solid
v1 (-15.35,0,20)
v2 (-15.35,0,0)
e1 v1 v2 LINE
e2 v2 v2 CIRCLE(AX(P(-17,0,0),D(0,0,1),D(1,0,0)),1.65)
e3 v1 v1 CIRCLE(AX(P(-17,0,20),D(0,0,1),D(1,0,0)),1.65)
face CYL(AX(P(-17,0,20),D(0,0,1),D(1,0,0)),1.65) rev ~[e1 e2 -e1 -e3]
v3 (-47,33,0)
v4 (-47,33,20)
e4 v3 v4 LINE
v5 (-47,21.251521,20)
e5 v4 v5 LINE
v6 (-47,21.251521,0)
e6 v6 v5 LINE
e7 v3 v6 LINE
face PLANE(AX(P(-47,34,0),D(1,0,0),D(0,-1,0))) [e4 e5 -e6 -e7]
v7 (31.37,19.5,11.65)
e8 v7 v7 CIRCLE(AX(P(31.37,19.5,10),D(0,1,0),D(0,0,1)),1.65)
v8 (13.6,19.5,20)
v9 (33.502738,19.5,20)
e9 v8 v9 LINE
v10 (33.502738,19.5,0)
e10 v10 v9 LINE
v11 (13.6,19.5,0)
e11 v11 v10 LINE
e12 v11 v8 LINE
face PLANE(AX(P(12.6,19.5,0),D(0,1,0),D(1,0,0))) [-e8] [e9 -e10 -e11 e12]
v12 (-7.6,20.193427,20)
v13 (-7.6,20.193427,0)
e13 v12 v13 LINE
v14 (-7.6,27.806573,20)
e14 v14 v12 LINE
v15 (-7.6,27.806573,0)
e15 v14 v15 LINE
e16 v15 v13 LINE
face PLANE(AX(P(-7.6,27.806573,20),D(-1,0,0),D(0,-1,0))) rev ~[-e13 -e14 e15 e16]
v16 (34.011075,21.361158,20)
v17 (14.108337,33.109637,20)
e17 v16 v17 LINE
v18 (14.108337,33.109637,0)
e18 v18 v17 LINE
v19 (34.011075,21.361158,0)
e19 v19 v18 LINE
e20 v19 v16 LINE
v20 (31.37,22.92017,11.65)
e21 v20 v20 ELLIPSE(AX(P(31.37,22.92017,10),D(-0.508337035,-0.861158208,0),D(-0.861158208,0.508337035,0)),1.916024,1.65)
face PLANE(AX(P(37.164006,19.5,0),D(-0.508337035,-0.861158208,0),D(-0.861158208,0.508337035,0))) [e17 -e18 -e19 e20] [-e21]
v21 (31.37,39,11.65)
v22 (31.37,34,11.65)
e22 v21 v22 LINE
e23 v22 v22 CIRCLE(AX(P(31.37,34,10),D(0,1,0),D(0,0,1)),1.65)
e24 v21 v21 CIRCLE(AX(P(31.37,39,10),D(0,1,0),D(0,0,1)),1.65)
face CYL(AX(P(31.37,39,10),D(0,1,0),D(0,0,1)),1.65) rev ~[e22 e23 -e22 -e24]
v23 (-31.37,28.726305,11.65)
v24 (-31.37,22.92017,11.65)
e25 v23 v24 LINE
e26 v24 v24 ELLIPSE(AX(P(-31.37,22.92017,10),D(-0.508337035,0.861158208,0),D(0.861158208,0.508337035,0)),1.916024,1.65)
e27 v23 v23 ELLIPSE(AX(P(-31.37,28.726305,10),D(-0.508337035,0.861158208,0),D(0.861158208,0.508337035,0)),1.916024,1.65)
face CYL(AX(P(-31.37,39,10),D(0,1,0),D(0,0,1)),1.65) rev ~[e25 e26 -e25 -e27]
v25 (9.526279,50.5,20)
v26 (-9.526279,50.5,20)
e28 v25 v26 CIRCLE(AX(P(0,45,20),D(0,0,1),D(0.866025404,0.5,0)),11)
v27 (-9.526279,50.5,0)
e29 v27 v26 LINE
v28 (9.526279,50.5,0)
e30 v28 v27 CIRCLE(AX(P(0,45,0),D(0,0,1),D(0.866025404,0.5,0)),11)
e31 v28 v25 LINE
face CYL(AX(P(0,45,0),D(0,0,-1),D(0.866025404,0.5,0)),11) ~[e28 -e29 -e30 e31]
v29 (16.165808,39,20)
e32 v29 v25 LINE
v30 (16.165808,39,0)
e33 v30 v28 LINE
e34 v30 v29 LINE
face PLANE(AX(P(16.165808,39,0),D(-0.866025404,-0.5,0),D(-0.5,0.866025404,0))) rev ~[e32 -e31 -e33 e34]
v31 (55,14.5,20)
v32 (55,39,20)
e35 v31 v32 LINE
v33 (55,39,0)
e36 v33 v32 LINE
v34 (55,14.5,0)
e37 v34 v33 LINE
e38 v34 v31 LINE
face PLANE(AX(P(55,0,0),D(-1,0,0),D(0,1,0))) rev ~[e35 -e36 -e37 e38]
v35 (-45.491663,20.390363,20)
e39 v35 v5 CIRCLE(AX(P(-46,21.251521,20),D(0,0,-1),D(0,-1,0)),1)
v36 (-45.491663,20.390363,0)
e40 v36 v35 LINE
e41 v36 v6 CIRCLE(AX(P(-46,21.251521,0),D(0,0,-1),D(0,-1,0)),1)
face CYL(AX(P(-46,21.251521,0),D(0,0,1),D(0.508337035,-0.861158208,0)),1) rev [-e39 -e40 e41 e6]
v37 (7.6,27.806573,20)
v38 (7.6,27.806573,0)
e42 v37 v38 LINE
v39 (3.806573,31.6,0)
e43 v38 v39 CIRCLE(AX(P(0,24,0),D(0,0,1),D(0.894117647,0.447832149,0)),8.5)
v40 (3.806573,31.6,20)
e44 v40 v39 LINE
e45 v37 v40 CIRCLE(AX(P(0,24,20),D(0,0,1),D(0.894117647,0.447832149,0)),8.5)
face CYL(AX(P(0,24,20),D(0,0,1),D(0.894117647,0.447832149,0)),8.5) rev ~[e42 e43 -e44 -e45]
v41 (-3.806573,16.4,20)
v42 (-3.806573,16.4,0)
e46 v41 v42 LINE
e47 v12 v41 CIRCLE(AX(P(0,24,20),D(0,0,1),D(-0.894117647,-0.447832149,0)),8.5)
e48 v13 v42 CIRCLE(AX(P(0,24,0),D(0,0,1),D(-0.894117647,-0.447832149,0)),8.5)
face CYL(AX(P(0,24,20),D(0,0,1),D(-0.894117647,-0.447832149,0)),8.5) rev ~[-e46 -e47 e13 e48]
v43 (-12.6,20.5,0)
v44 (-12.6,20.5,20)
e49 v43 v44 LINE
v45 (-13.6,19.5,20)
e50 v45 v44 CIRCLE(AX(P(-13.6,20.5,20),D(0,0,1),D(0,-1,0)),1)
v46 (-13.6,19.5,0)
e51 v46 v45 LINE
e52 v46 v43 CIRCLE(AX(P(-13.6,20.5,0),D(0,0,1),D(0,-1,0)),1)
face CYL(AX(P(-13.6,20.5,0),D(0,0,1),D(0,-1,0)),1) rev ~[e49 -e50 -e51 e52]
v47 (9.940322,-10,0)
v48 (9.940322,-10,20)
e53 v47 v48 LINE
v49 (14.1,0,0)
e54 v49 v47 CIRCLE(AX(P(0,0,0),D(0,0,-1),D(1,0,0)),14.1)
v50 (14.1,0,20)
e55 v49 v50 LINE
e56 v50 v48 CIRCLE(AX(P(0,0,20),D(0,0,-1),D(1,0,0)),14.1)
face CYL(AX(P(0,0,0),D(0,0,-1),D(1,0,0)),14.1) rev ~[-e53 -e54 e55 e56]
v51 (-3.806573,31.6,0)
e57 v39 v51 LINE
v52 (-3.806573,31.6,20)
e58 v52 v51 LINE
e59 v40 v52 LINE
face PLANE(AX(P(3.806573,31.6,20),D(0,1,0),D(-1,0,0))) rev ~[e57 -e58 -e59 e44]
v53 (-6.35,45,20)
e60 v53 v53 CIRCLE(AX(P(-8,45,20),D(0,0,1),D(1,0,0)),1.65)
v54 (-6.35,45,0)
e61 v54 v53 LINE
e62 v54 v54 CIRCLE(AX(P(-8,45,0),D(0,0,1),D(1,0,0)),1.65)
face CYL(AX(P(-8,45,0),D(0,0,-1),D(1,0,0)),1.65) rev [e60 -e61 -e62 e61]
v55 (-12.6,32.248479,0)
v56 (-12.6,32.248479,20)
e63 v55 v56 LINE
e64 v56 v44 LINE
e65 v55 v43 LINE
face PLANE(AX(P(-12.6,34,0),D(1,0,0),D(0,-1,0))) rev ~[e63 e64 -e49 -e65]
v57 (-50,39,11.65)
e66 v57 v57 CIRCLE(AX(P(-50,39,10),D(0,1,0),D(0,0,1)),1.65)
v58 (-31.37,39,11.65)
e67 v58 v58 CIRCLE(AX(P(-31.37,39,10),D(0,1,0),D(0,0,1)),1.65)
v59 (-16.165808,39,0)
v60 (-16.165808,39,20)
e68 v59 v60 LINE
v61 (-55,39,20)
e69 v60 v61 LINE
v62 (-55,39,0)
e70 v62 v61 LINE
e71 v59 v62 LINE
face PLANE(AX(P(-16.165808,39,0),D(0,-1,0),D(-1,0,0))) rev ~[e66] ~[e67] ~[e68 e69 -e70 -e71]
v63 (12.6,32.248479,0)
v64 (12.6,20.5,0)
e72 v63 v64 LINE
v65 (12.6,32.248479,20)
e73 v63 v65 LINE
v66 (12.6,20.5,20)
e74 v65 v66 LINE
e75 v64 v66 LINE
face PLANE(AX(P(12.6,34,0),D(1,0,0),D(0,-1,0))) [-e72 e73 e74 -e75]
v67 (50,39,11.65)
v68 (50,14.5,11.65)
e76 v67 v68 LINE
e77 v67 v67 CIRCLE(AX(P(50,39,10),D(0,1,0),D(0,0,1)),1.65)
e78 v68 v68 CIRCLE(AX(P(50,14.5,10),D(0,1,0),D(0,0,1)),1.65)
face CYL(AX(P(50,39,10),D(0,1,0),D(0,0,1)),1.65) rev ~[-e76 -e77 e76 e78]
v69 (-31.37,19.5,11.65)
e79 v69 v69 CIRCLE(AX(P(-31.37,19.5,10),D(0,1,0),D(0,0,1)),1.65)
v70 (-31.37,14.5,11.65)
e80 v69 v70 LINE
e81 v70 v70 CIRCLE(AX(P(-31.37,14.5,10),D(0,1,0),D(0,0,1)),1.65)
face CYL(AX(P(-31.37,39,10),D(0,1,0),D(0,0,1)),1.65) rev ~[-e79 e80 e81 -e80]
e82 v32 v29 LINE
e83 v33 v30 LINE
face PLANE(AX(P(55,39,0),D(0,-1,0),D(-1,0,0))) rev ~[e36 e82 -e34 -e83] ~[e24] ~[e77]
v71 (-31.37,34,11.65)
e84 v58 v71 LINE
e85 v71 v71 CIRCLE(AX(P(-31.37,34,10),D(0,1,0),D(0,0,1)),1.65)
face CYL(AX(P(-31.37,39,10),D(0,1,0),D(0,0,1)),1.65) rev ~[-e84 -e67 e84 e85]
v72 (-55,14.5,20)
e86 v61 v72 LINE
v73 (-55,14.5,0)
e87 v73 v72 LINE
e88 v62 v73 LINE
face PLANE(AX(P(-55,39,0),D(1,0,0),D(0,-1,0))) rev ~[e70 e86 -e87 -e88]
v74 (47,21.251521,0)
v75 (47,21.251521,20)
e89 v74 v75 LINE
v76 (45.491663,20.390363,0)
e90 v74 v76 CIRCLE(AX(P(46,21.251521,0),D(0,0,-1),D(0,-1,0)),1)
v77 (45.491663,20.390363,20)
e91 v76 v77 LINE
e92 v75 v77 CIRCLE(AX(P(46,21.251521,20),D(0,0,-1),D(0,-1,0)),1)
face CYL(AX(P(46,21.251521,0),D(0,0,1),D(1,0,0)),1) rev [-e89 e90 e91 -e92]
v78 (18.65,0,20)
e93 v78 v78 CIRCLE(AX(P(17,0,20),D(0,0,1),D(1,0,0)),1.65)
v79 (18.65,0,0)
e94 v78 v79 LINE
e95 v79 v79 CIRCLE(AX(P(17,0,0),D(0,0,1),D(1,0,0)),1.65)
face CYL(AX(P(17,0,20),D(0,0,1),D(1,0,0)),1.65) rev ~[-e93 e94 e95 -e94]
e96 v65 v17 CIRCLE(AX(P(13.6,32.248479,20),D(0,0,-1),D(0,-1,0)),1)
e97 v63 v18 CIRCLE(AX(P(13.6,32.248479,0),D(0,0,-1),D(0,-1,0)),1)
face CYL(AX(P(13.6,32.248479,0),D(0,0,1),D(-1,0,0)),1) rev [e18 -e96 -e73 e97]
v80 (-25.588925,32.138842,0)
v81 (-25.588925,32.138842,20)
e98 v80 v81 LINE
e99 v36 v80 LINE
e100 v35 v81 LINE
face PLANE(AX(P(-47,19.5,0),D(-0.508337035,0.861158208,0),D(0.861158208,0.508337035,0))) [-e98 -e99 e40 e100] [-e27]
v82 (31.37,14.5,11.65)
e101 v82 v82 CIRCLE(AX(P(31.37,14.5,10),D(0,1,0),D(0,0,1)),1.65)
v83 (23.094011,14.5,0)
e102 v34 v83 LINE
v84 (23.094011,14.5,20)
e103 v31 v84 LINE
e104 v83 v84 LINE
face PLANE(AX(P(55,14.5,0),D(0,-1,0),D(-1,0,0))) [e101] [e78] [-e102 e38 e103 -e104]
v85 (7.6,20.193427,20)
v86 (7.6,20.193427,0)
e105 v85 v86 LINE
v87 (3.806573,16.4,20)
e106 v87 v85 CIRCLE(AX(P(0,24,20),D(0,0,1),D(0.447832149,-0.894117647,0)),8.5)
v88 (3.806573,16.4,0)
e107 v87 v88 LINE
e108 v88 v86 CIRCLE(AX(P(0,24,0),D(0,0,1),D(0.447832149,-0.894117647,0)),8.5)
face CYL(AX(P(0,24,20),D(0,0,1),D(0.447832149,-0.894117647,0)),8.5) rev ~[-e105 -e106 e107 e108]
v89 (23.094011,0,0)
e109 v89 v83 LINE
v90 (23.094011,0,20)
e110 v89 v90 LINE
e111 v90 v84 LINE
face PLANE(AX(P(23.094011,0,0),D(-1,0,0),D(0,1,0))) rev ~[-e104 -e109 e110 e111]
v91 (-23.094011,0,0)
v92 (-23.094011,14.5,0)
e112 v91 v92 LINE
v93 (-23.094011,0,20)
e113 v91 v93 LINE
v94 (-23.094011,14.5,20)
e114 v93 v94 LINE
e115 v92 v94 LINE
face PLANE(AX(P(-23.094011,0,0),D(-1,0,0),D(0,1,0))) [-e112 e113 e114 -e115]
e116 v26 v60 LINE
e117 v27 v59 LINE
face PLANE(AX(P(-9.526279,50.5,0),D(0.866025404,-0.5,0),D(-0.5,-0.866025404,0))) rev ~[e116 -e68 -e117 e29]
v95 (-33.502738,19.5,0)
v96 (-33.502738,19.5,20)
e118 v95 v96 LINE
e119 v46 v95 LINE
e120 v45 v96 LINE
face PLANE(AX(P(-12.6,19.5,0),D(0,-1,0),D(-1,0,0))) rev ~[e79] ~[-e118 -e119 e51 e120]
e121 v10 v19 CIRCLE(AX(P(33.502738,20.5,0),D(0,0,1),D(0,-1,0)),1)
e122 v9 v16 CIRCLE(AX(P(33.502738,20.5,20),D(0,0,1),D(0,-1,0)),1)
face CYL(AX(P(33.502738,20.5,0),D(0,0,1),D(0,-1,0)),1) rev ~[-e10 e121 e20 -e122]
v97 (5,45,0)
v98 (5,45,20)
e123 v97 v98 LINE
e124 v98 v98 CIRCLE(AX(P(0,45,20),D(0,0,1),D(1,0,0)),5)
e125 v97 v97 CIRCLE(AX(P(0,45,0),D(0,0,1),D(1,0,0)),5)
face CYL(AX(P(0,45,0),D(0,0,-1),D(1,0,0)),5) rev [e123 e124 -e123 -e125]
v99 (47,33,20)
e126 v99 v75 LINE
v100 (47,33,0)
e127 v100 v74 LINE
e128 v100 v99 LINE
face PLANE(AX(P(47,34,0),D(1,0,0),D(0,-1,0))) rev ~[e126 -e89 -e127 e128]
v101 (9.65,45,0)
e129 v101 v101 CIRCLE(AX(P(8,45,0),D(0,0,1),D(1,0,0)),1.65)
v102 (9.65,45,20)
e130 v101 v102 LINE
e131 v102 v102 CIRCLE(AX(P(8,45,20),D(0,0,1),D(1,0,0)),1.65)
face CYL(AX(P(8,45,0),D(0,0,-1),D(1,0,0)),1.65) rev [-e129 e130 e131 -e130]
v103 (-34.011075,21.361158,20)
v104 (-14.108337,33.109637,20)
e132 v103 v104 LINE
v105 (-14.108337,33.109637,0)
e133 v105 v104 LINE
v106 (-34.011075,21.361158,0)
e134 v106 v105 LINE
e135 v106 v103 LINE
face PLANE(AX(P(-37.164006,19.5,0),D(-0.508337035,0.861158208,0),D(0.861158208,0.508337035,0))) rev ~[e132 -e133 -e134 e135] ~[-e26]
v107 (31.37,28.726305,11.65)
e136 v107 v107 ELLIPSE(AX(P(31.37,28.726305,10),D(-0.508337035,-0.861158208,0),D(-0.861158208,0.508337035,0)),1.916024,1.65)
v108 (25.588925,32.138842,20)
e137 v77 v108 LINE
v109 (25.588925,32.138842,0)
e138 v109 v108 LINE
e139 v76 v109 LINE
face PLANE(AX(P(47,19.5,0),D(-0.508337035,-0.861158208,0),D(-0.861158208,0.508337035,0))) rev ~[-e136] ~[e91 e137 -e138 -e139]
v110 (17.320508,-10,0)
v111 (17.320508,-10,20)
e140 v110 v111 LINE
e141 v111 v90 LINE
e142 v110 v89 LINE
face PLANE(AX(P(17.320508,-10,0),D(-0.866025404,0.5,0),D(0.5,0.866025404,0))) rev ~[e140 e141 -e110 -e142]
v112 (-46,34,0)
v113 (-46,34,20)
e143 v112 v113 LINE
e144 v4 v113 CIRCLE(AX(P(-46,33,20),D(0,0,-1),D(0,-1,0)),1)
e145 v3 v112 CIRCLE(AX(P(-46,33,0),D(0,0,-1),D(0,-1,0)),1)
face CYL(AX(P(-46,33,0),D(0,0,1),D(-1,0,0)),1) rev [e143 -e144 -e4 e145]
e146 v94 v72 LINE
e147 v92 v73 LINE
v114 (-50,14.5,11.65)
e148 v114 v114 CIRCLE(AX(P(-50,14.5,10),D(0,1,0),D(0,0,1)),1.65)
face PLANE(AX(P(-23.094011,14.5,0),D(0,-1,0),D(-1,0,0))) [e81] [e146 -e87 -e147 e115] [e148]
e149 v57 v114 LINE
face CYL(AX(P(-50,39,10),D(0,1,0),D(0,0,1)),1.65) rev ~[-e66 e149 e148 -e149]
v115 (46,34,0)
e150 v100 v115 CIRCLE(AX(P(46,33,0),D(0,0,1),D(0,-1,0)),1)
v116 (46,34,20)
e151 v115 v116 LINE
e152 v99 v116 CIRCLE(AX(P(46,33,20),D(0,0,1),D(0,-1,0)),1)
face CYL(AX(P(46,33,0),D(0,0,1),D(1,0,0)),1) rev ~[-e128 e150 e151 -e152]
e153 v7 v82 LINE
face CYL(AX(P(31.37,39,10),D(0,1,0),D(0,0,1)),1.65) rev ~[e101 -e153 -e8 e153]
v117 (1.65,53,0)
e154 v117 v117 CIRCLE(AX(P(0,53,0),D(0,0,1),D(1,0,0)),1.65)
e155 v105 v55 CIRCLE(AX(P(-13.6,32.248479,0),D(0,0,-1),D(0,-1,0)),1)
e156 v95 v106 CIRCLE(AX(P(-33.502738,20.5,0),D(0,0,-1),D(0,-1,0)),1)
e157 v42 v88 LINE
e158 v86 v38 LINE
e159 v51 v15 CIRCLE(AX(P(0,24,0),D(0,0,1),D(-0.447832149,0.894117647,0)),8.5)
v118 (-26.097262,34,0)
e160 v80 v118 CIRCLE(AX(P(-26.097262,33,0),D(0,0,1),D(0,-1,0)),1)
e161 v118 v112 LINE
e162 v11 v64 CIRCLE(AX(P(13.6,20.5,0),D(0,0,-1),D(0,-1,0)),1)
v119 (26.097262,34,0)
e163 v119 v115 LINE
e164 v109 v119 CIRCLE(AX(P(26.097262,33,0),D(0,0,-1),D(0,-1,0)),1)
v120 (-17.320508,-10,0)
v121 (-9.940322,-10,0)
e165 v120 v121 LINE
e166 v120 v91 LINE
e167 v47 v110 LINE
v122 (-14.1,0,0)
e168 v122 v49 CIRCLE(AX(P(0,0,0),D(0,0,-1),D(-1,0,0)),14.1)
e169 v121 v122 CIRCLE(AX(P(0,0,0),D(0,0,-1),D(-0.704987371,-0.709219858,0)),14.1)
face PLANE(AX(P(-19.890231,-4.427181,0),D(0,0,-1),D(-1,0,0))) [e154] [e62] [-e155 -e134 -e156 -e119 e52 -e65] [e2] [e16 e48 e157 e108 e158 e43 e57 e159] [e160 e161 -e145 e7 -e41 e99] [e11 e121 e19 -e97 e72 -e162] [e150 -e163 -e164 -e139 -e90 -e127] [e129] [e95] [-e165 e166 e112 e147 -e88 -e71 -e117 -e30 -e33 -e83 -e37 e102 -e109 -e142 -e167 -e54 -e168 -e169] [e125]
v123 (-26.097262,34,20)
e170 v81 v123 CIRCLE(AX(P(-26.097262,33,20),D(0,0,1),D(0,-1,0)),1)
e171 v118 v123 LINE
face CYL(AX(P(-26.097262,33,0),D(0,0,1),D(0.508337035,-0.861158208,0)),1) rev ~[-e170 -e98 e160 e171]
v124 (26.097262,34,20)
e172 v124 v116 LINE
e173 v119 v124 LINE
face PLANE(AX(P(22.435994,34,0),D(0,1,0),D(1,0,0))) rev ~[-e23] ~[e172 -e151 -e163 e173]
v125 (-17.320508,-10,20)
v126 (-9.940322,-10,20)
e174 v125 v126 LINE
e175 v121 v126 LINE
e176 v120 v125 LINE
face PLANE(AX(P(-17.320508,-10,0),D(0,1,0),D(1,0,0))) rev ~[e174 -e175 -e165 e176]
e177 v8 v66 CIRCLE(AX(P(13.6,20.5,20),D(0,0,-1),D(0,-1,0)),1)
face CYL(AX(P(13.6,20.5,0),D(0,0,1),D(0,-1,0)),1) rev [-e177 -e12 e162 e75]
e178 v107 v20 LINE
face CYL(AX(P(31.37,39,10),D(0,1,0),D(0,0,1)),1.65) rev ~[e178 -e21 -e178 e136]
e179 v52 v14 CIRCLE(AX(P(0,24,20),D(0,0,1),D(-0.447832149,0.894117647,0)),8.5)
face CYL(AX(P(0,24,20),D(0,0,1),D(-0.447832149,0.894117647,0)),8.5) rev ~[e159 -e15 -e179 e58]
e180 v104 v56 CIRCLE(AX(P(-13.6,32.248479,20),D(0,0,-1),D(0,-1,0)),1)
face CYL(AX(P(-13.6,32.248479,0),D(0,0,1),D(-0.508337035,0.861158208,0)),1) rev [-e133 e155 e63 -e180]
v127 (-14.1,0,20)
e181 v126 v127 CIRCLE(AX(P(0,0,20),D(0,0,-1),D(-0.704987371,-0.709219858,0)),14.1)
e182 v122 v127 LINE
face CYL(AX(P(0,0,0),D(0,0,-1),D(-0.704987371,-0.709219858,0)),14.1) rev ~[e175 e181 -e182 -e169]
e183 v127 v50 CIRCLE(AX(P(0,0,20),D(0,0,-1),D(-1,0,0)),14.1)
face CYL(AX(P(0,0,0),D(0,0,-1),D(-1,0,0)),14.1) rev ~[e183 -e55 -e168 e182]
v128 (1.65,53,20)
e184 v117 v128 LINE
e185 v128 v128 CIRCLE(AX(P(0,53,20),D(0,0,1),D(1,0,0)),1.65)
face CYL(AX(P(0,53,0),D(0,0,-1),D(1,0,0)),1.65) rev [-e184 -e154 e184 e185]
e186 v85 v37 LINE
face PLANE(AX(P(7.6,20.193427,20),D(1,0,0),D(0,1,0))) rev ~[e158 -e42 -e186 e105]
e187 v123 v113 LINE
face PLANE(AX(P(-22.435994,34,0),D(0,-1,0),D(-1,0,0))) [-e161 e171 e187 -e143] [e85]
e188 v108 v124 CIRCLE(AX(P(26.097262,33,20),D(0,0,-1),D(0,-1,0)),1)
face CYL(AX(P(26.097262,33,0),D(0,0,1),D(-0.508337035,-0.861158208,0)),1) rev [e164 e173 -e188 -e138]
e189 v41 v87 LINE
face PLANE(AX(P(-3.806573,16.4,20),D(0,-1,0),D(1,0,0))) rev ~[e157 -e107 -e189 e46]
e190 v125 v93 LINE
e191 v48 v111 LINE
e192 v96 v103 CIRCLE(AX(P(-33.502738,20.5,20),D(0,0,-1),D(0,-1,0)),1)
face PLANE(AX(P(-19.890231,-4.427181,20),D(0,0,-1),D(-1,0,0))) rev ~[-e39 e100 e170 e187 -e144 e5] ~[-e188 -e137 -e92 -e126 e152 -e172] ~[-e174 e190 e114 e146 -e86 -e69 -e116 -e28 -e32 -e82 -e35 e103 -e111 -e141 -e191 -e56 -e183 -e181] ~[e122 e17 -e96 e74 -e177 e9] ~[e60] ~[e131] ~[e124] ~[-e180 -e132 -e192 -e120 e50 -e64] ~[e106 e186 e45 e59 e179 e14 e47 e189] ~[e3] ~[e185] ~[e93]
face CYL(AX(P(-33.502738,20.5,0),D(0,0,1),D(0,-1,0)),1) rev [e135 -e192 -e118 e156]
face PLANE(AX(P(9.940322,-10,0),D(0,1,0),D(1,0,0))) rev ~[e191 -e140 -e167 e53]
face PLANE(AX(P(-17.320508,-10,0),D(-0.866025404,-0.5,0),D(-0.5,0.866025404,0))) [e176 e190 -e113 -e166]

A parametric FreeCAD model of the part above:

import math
import FreeCAD as App
import Part
import Sketcher
Q = App.Units.Quantity


def edges_at(feature, points):
    """Names of the edges that pass closest to the given points."""
    edges = feature.Shape.Edges
    near = lambda p: min(range(len(edges)), key=lambda i: edges[i].distToShape(Part.Vertex(*p))[0])
    return sorted({f"Edge{near(p) + 1}" for p in points})

doc = App.newDocument("Part")
body = doc.addObject("PartDesign::Body", "Body")

sketch1 = doc.addObject("Sketcher::SketchObject", "Sketch")
body.addObject(sketch1)
sketch1.AttachmentSupport = (doc.XY_Plane, [""])
sketch1.MapMode = "FlatFace"
sketch1.addGeometry(Part.LineSegment(App.Vector(55, 39, 0), App.Vector(16.165808, 39, 0)), False)
sketch1.addGeometry(Part.LineSegment(App.Vector(16.165808, 39, 0), App.Vector(9.526279, 50.5, 0)), False)
sketch1.addGeometry(Part.ArcOfCircle(Part.Circle(App.Vector(0, 45, 0), App.Vector(0, 0, 1), 11), math.radians(30), math.radians(150)), False)
sketch1.addGeometry(Part.LineSegment(App.Vector(-9.526279, 50.5, 0), App.Vector(-16.165808, 39, 0)), False)
sketch1.addGeometry(Part.LineSegment(App.Vector(-16.165808, 39, 0), App.Vector(-55, 39, 0)), False)
sketch1.addGeometry(Part.LineSegment(App.Vector(-55, 39, 0), App.Vector(-55, 0, 0)), False)
sketch1.addGeometry(Part.LineSegment(App.Vector(-55, 0, 0), App.Vector(-14.1, 0, 0)), False)
sketch1.addGeometry(Part.ArcOfCircle(Part.Circle(App.Vector(0, 0, 0), App.Vector(0, 0, 1), 14.1), math.radians(0), math.radians(180)), False)
sketch1.addGeometry(Part.LineSegment(App.Vector(14.1, 0, 0), App.Vector(55, 0, 0)), False)
sketch1.addGeometry(Part.LineSegment(App.Vector(55, 0, 0), App.Vector(55, 39, 0)), False)
sketch1.addGeometry(Part.Circle(App.Vector(-8, 45, 0), App.Vector(0, 0, 1), 1.65), False)
sketch1.addGeometry(Part.Circle(App.Vector(0, 45, 0), App.Vector(0, 0, 1), 5), False)
sketch1.addGeometry(Part.Circle(App.Vector(8, 45, 0), App.Vector(0, 0, 1), 1.65), False)
sketch1.addGeometry(Part.Circle(App.Vector(0, 53, 0), App.Vector(0, 0, 1), 1.65), False)
sketch1.addConstraint(Sketcher.Constraint("Coincident", 0, 2, 1, 1))
sketch1.addConstraint(Sketcher.Constraint("Tangent", 1, 2, 2, 1))
sketch1.addConstraint(Sketcher.Constraint("Tangent", 2, 2, 3, 1))
sketch1.addConstraint(Sketcher.Constraint("Coincident", 3, 2, 4, 1))
sketch1.addConstraint(Sketcher.Constraint("Coincident", 4, 2, 5, 1))
sketch1.addConstraint(Sketcher.Constraint("Coincident", 5, 2, 6, 1))
sketch1.addConstraint(Sketcher.Constraint("Coincident", 6, 2, 7, 2))
sketch1.addConstraint(Sketcher.Constraint("Coincident", 7, 1, 8, 1))
sketch1.addConstraint(Sketcher.Constraint("Coincident", 8, 2, 9, 1))
sketch1.addConstraint(Sketcher.Constraint("Coincident", 9, 2, 0, 1))
sketch1.addConstraint(Sketcher.Constraint("Horizontal", 0))
sketch1.addConstraint(Sketcher.Constraint("Horizontal", 4))
sketch1.addConstraint(Sketcher.Constraint("Vertical", 5))
sketch1.addConstraint(Sketcher.Constraint("Horizontal", 6))
sketch1.addConstraint(Sketcher.Constraint("Horizontal", 8))
sketch1.addConstraint(Sketcher.Constraint("Vertical", 9))
sketch1.addConstraint(Sketcher.Constraint("Coincident", 7, 3, -1, 1))
sketch1.addConstraint(Sketcher.Constraint("Coincident", 11, 3, 2, 3))
sketch1.addConstraint(Sketcher.Constraint("Equal", 10, 12))
sketch1.addConstraint(Sketcher.Constraint("Equal", 12, 13))
sketch1.addConstraint(Sketcher.Constraint("Symmetric", 5, 2, 8, 2, -1, 1))
sketch1.addConstraint(Sketcher.Constraint("Symmetric", 10, 3, 12, 3, -2))
sketch1.addConstraint(Sketcher.Constraint("Symmetric", 1, 2, 2, 2, -2))
sketch1.addConstraint(Sketcher.Constraint("PointOnObject", 13, 3, -2))
sketch1.addConstraint(Sketcher.Constraint("PointOnObject", 5, 2, -1))
sketch1.addConstraint(Sketcher.Constraint("Horizontal", 2, 3, 10, 3))
sketch1.addConstraint(Sketcher.Constraint("Horizontal", 0, 2, 3, 2))
sketch1.addConstraint(Sketcher.Constraint("Diameter", 11, 10.0))
sketch1.addConstraint(Sketcher.Constraint("Radius", 2, 11.0))
sketch1.addConstraint(Sketcher.Constraint("Diameter", 10, 3.3))
sketch1.addConstraint(Sketcher.Constraint("Radius", 7, 14.1))
sketch1.addConstraint(Sketcher.Constraint("DistanceY", 5, 2, 5, 1, 39.0))
sketch1.addConstraint(Sketcher.Constraint("Angle", 1, Q("120 deg")))
sketch1.addConstraint(Sketcher.Constraint("DistanceX", 6, 1, 6, 2, 40.9))
sketch1.addConstraint(Sketcher.Constraint("DistanceY", -1, 1, 2, 3, 45.0))
sketch1.addConstraint(Sketcher.Constraint("DistanceX", 10, 3, -1, 1, 8.0))
sketch1.addConstraint(Sketcher.Constraint("DistanceY", -1, 1, 13, 3, 53.0))
pad1 = doc.addObject("PartDesign::Pad", "Pad")
body.addObject(pad1)
pad1.Profile = sketch1
pad1.Length = 20

sketch2 = doc.addObject("Sketcher::SketchObject", "Sketch001")
body.addObject(sketch2)
sketch2.AttachmentSupport = (doc.XZ_Plane, [""])
sketch2.MapMode = "FlatFace"
sketch2.AttachmentOffset = App.Placement(App.Vector(0, 0, -39), App.Rotation())
sketch2.addGeometry(Part.Circle(App.Vector(-50, 10, 0), App.Vector(0, 0, 1), 1.65), False)
sketch2.addGeometry(Part.Circle(App.Vector(-31.37, 10, 0), App.Vector(0, 0, 1), 1.65), False)
sketch2.addGeometry(Part.Circle(App.Vector(31.37, 10, 0), App.Vector(0, 0, 1), 1.65), False)
sketch2.addGeometry(Part.Circle(App.Vector(50, 10, 0), App.Vector(0, 0, 1), 1.65), False)
sketch2.addConstraint(Sketcher.Constraint("Equal", 0, 1))
sketch2.addConstraint(Sketcher.Constraint("Equal", 1, 2))
sketch2.addConstraint(Sketcher.Constraint("Equal", 2, 3))
sketch2.addConstraint(Sketcher.Constraint("Symmetric", 1, 3, 2, 3, -2))
sketch2.addConstraint(Sketcher.Constraint("Symmetric", 0, 3, 3, 3, -2))
sketch2.addConstraint(Sketcher.Constraint("Horizontal", 0, 3, 1, 3))
sketch2.addConstraint(Sketcher.Constraint("Diameter", 0, 3.3))
sketch2.addConstraint(Sketcher.Constraint("DistanceX", 0, 3, -1, 1, 50.0))
sketch2.addConstraint(Sketcher.Constraint("DistanceY", -1, 1, 0, 3, 10.0))
sketch2.addConstraint(Sketcher.Constraint("DistanceX", 1, 3, -1, 1, 31.37))
pocket1 = doc.addObject("PartDesign::Pocket", "Pocket")
body.addObject(pocket1)
pocket1.Profile = sketch2
pocket1.Type = "ThroughAll"
pocket1.Reversed = True

sketch3 = doc.addObject("Sketcher::SketchObject", "Sketch002")
body.addObject(sketch3)
sketch3.AttachmentSupport = (doc.XY_Plane, [""])
sketch3.MapMode = "FlatFace"
sketch3.addGeometry(Part.ArcOfCircle(Part.Circle(App.Vector(0, 0, 0), App.Vector(0, 0, 1), 20), math.radians(180), math.radians(210)), False)
sketch3.addGeometry(Part.LineSegment(App.Vector(-17.320508, -10, 0), App.Vector(-9.940322, -10, 0)), False)
sketch3.addGeometry(Part.ArcOfCircle(Part.Circle(App.Vector(0, 0, 0), App.Vector(0, 0, 1), 14.1), math.radians(-180), math.radians(-134.828524)), False)
sketch3.addGeometry(Part.LineSegment(App.Vector(-14.1, 0, 0), App.Vector(-20, 0, 0)), False)
sketch3.addGeometry(Part.LineSegment(App.Vector(9.940322, -10, 0), App.Vector(17.320508, -10, 0)), False)
sketch3.addGeometry(Part.ArcOfCircle(Part.Circle(App.Vector(0, 0, 0), App.Vector(0, 0, 1), 20), math.radians(-30), math.radians(0)), False)
sketch3.addGeometry(Part.LineSegment(App.Vector(20, 0, 0), App.Vector(14.1, 0, 0)), False)
sketch3.addGeometry(Part.ArcOfCircle(Part.Circle(App.Vector(0, 0, 0), App.Vector(0, 0, 1), 14.1), math.radians(-45.171476), math.radians(0)), False)
sketch3.addConstraint(Sketcher.Constraint("Coincident", 0, 2, 1, 1))
sketch3.addConstraint(Sketcher.Constraint("Coincident", 1, 2, 2, 2))
sketch3.addConstraint(Sketcher.Constraint("Coincident", 2, 1, 3, 1))
sketch3.addConstraint(Sketcher.Constraint("Coincident", 3, 2, 0, 1))
sketch3.addConstraint(Sketcher.Constraint("Coincident", 4, 2, 5, 1))
sketch3.addConstraint(Sketcher.Constraint("Coincident", 5, 2, 6, 1))
sketch3.addConstraint(Sketcher.Constraint("Coincident", 6, 2, 7, 2))
sketch3.addConstraint(Sketcher.Constraint("Coincident", 7, 1, 4, 1))
sketch3.addConstraint(Sketcher.Constraint("Horizontal", 1))
sketch3.addConstraint(Sketcher.Constraint("Horizontal", 3))
sketch3.addConstraint(Sketcher.Constraint("Horizontal", 4))
sketch3.addConstraint(Sketcher.Constraint("Horizontal", 6))
sketch3.addConstraint(Sketcher.Constraint("Coincident", 0, 3, -1, 1))
sketch3.addConstraint(Sketcher.Constraint("Coincident", 2, 3, -1, 1))
sketch3.addConstraint(Sketcher.Constraint("Coincident", 5, 3, -1, 1))
sketch3.addConstraint(Sketcher.Constraint("Coincident", 7, 3, -1, 1))
sketch3.addConstraint(Sketcher.Constraint("Equal", 0, 5))
sketch3.addConstraint(Sketcher.Constraint("Equal", 2, 7))
sketch3.addConstraint(Sketcher.Constraint("PointOnObject", 2, 1, -1))
sketch3.addConstraint(Sketcher.Constraint("PointOnObject", 5, 2, -1))
sketch3.addConstraint(Sketcher.Constraint("Horizontal", 1, 2, 4, 2))
sketch3.addConstraint(Sketcher.Constraint("Radius", 0, 20.0))
sketch3.addConstraint(Sketcher.Constraint("Radius", 2, 14.1))
sketch3.addConstraint(Sketcher.Constraint("DistanceY", 0, 2, -1, 1, 10.0))
pad2 = doc.addObject("PartDesign::Pad", "Pad001")
body.addObject(pad2)
pad2.Profile = sketch3
pad2.Length = 20

sketch4 = doc.addObject("Sketcher::SketchObject", "Sketch003")
body.addObject(sketch4)
sketch4.AttachmentSupport = (doc.XY_Plane, [""])
sketch4.MapMode = "FlatFace"
sketch4.AttachmentOffset = App.Placement(App.Vector(0, 0, 20), App.Rotation())
sketch4.addGeometry(Part.Circle(App.Vector(17, 0, 0), App.Vector(0, 0, 1), 1.65), False)
sketch4.addGeometry(Part.Circle(App.Vector(-17, 0, 0), App.Vector(0, 0, 1), 1.65), False)
sketch4.addConstraint(Sketcher.Constraint("Equal", 0, 1))
sketch4.addConstraint(Sketcher.Constraint("Symmetric", 0, 3, 1, 3, -1, 1))
sketch4.addConstraint(Sketcher.Constraint("PointOnObject", 0, 3, -1))
sketch4.addConstraint(Sketcher.Constraint("Diameter", 0, 3.3))
sketch4.addConstraint(Sketcher.Constraint("DistanceX", -1, 1, 0, 3, 17.0))
pocket2 = doc.addObject("PartDesign::Pocket", "Pocket001")
body.addObject(pocket2)
pocket2.Profile = sketch4
pocket2.Type = "ThroughAll"

sketch5 = doc.addObject("Sketcher::SketchObject", "Sketch004")
body.addObject(sketch5)
sketch5.AttachmentSupport = (doc.XY_Plane, [""])
sketch5.MapMode = "FlatFace"
sketch5.addGeometry(Part.LineSegment(App.Vector(-23.094011, 0, 0), App.Vector(-17.320508, -10, 0)), False)
sketch5.addGeometry(Part.ArcOfCircle(Part.Circle(App.Vector(0, 0, 0), App.Vector(0, 0, 1), 20), math.radians(180), math.radians(210)), False)
sketch5.addGeometry(Part.LineSegment(App.Vector(-20, 0, 0), App.Vector(-23.094011, 0, 0)), False)
sketch5.addGeometry(Part.LineSegment(App.Vector(17.320508, -10, 0), App.Vector(23.094011, 0, 0)), False)
sketch5.addGeometry(Part.LineSegment(App.Vector(23.094011, 0, 0), App.Vector(20, 0, 0)), False)
sketch5.addGeometry(Part.ArcOfCircle(Part.Circle(App.Vector(0, 0, 0), App.Vector(0, 0, 1), 20), math.radians(-30), math.radians(0)), False)
sketch5.addConstraint(Sketcher.Constraint("Tangent", 0, 2, 1, 2))
sketch5.addConstraint(Sketcher.Constraint("Coincident", 1, 1, 2, 1))
sketch5.addConstraint(Sketcher.Constraint("Coincident", 2, 2, 0, 1))
sketch5.addConstraint(Sketcher.Constraint("Coincident", 3, 2, 4, 1))
sketch5.addConstraint(Sketcher.Constraint("Coincident", 4, 2, 5, 2))
sketch5.addConstraint(Sketcher.Constraint("Tangent", 5, 1, 3, 1))
sketch5.addConstraint(Sketcher.Constraint("Horizontal", 2))
sketch5.addConstraint(Sketcher.Constraint("Horizontal", 4))
sketch5.addConstraint(Sketcher.Constraint("Coincident", 1, 3, -1, 1))
sketch5.addConstraint(Sketcher.Constraint("Coincident", 5, 3, -1, 1))
sketch5.addConstraint(Sketcher.Constraint("Equal", 1, 5))
sketch5.addConstraint(Sketcher.Constraint("Symmetric", 2, 2, 3, 2, -1, 1))
sketch5.addConstraint(Sketcher.Constraint("PointOnObject", 1, 1, -1))
sketch5.addConstraint(Sketcher.Constraint("Radius", 1, 20.0))
sketch5.addConstraint(Sketcher.Constraint("Angle", 0, Q("-60 deg")))
pad3 = doc.addObject("PartDesign::Pad", "Pad002")
body.addObject(pad3)
pad3.Profile = sketch5
pad3.Length = 20

sketch6 = doc.addObject("Sketcher::SketchObject", "Sketch005")
body.addObject(sketch6)
sketch6.AttachmentSupport = (doc.XY_Plane, [""])
sketch6.MapMode = "FlatFace"
sketch6.AttachmentOffset = App.Placement(App.Vector(0, 0, 20), App.Rotation())
sketch6.addGeometry(Part.LineSegment(App.Vector(3.806573, 31.6, 0), App.Vector(-3.806573, 31.6, 0)), False)
sketch6.addGeometry(Part.ArcOfCircle(Part.Circle(App.Vector(0, 24, 0), App.Vector(0, 0, 1), 8.5), math.radians(116.604682), math.radians(153.395318)), False)
sketch6.addGeometry(Part.LineSegment(App.Vector(-7.6, 27.806573, 0), App.Vector(-7.6, 20.193427, 0)), False)
sketch6.addGeometry(Part.ArcOfCircle(Part.Circle(App.Vector(0, 24, 0), App.Vector(0, 0, 1), 8.5), math.radians(-153.395318), math.radians(-116.604682)), False)
sketch6.addGeometry(Part.LineSegment(App.Vector(-3.806573, 16.4, 0), App.Vector(3.806573, 16.4, 0)), False)
sketch6.addGeometry(Part.ArcOfCircle(Part.Circle(App.Vector(0, 24, 0), App.Vector(0, 0, 1), 8.5), math.radians(-63.395318), math.radians(-26.604682)), False)
sketch6.addGeometry(Part.LineSegment(App.Vector(7.6, 20.193427, 0), App.Vector(7.6, 27.806573, 0)), False)
sketch6.addGeometry(Part.ArcOfCircle(Part.Circle(App.Vector(0, 24, 0), App.Vector(0, 0, 1), 8.5), math.radians(26.604682), math.radians(63.395318)), False)
sketch6.addConstraint(Sketcher.Constraint("Coincident", 0, 2, 1, 1))
sketch6.addConstraint(Sketcher.Constraint("Coincident", 1, 2, 2, 1))
sketch6.addConstraint(Sketcher.Constraint("Coincident", 2, 2, 3, 1))
sketch6.addConstraint(Sketcher.Constraint("Coincident", 3, 2, 4, 1))
sketch6.addConstraint(Sketcher.Constraint("Coincident", 4, 2, 5, 1))
sketch6.addConstraint(Sketcher.Constraint("Coincident", 5, 2, 6, 1))
sketch6.addConstraint(Sketcher.Constraint("Coincident", 6, 2, 7, 1))
sketch6.addConstraint(Sketcher.Constraint("Coincident", 7, 2, 0, 1))
sketch6.addConstraint(Sketcher.Constraint("Horizontal", 0))
sketch6.addConstraint(Sketcher.Constraint("Vertical", 2))
sketch6.addConstraint(Sketcher.Constraint("Horizontal", 4))
sketch6.addConstraint(Sketcher.Constraint("Vertical", 6))
sketch6.addConstraint(Sketcher.Constraint("Coincident", 3, 3, 1, 3))
sketch6.addConstraint(Sketcher.Constraint("Coincident", 5, 3, 1, 3))
sketch6.addConstraint(Sketcher.Constraint("Coincident", 7, 3, 1, 3))
sketch6.addConstraint(Sketcher.Constraint("Equal", 1, 3))
sketch6.addConstraint(Sketcher.Constraint("Equal", 3, 5))
sketch6.addConstraint(Sketcher.Constraint("Equal", 5, 7))
sketch6.addConstraint(Sketcher.Constraint("Symmetric", 2, 2, 5, 2, -2))
sketch6.addConstraint(Sketcher.Constraint("Vertical", 0, 2, 3, 2))
sketch6.addConstraint(Sketcher.Constraint("Equal", 4, 2))
sketch6.addConstraint(Sketcher.Constraint("Radius", 1, 8.5))
sketch6.addConstraint(Sketcher.Constraint("DistanceY", -1, 1, 1, 3, 24.0))
sketch6.addConstraint(Sketcher.Constraint("DistanceY", -1, 1, 0, 2, 31.6))
pocket3 = doc.addObject("PartDesign::Pocket", "Pocket002")
body.addObject(pocket3)
pocket3.Profile = sketch6
pocket3.Length = 20

sketch7 = doc.addObject("Sketcher::SketchObject", "Sketch006")
body.addObject(sketch7)
sketch7.AttachmentSupport = (doc.XY_Plane, [""])
sketch7.MapMode = "FlatFace"
sketch7.addGeometry(Part.LineSegment(App.Vector(55, 14.5, 0), App.Vector(55, 0, 0)), False)
sketch7.addGeometry(Part.LineSegment(App.Vector(55, 0, 0), App.Vector(23.094011, 0, 0)), False)
sketch7.addGeometry(Part.LineSegment(App.Vector(23.094011, 0, 0), App.Vector(23.094011, 14.5, 0)), False)
sketch7.addGeometry(Part.LineSegment(App.Vector(23.094011, 14.5, 0), App.Vector(55, 14.5, 0)), False)
sketch7.addGeometry(Part.LineSegment(App.Vector(-23.094011, 14.5, 0), App.Vector(-23.094011, 0, 0)), False)
sketch7.addGeometry(Part.LineSegment(App.Vector(-23.094011, 0, 0), App.Vector(-55, 0, 0)), False)
sketch7.addGeometry(Part.LineSegment(App.Vector(-55, 0, 0), App.Vector(-55, 14.5, 0)), False)
sketch7.addGeometry(Part.LineSegment(App.Vector(-55, 14.5, 0), App.Vector(-23.094011, 14.5, 0)), False)
sketch7.addConstraint(Sketcher.Constraint("Coincident", 0, 2, 1, 1))
sketch7.addConstraint(Sketcher.Constraint("Coincident", 1, 2, 2, 1))
sketch7.addConstraint(Sketcher.Constraint("Coincident", 2, 2, 3, 1))
sketch7.addConstraint(Sketcher.Constraint("Coincident", 3, 2, 0, 1))
sketch7.addConstraint(Sketcher.Constraint("Coincident", 4, 2, 5, 1))
sketch7.addConstraint(Sketcher.Constraint("Coincident", 5, 2, 6, 1))
sketch7.addConstraint(Sketcher.Constraint("Coincident", 6, 2, 7, 1))
sketch7.addConstraint(Sketcher.Constraint("Coincident", 7, 2, 4, 1))
sketch7.addConstraint(Sketcher.Constraint("Vertical", 0))
sketch7.addConstraint(Sketcher.Constraint("Horizontal", 1))
sketch7.addConstraint(Sketcher.Constraint("Vertical", 2))
sketch7.addConstraint(Sketcher.Constraint("Horizontal", 3))
sketch7.addConstraint(Sketcher.Constraint("Vertical", 4))
sketch7.addConstraint(Sketcher.Constraint("Horizontal", 5))
sketch7.addConstraint(Sketcher.Constraint("Vertical", 6))
sketch7.addConstraint(Sketcher.Constraint("Horizontal", 7))
sketch7.addConstraint(Sketcher.Constraint("Symmetric", 1, 2, 4, 2, -1, 1))
sketch7.addConstraint(Sketcher.Constraint("Symmetric", 0, 2, 5, 2, -2))
sketch7.addConstraint(Sketcher.Constraint("Horizontal", 3, 2, 6, 2))
sketch7.addConstraint(Sketcher.Constraint("DistanceY", 0, 2, 0, 1, 14.5))
sketch7.addConstraint(Sketcher.Constraint("DistanceX", -1, 1, 0, 2, 55.0))
sketch7.addConstraint(Sketcher.Constraint("DistanceX", 1, 2, 1, 1, 31.905989))
pocket4 = doc.addObject("PartDesign::Pocket", "Pocket003")
body.addObject(pocket4)
pocket4.Profile = sketch7
pocket4.Type = "ThroughAll"
pocket4.Reversed = True

sketch8 = doc.addObject("Sketcher::SketchObject", "Sketch007")
body.addObject(sketch8)
sketch8.AttachmentSupport = (doc.XY_Plane, [""])
sketch8.MapMode = "FlatFace"
sketch8.addGeometry(Part.LineSegment(App.Vector(47, 34, 0), App.Vector(47, 19.5, 0)), False)
sketch8.addGeometry(Part.LineSegment(App.Vector(47, 19.5, 0), App.Vector(22.435994, 34, 0)), False)
sketch8.addGeometry(Part.LineSegment(App.Vector(22.435994, 34, 0), App.Vector(47, 34, 0)), False)
sketch8.addGeometry(Part.LineSegment(App.Vector(12.6, 34, 0), App.Vector(37.164006, 19.5, 0)), False)
sketch8.addGeometry(Part.LineSegment(App.Vector(37.164006, 19.5, 0), App.Vector(12.6, 19.5, 0)), False)
sketch8.addGeometry(Part.LineSegment(App.Vector(12.6, 19.5, 0), App.Vector(12.6, 34, 0)), False)
sketch8.addGeometry(Part.LineSegment(App.Vector(-12.6, 19.5, 0), App.Vector(-37.164006, 19.5, 0)), False)
sketch8.addGeometry(Part.LineSegment(App.Vector(-37.164006, 19.5, 0), App.Vector(-12.6, 34, 0)), False)
sketch8.addGeometry(Part.LineSegment(App.Vector(-12.6, 34, 0), App.Vector(-12.6, 19.5, 0)), False)
sketch8.addGeometry(Part.LineSegment(App.Vector(-47, 34, 0), App.Vector(-22.435994, 34, 0)), False)
sketch8.addGeometry(Part.LineSegment(App.Vector(-22.435994, 34, 0), App.Vector(-47, 19.5, 0)), False)
sketch8.addGeometry(Part.LineSegment(App.Vector(-47, 19.5, 0), App.Vector(-47, 34, 0)), False)
sketch8.addConstraint(Sketcher.Constraint("Coincident", 0, 2, 1, 1))
sketch8.addConstraint(Sketcher.Constraint("Coincident", 1, 2, 2, 1))
sketch8.addConstraint(Sketcher.Constraint("Coincident", 2, 2, 0, 1))
sketch8.addConstraint(Sketcher.Constraint("Coincident", 3, 2, 4, 1))
sketch8.addConstraint(Sketcher.Constraint("Coincident", 4, 2, 5, 1))
sketch8.addConstraint(Sketcher.Constraint("Coincident", 5, 2, 3, 1))
sketch8.addConstraint(Sketcher.Constraint("Coincident", 6, 2, 7, 1))
sketch8.addConstraint(Sketcher.Constraint("Coincident", 7, 2, 8, 1))
sketch8.addConstraint(Sketcher.Constraint("Coincident", 8, 2, 6, 1))
sketch8.addConstraint(Sketcher.Constraint("Coincident", 9, 2, 10, 1))
sketch8.addConstraint(Sketcher.Constraint("Coincident", 10, 2, 11, 1))
sketch8.addConstraint(Sketcher.Constraint("Coincident", 11, 2, 9, 1))
sketch8.addConstraint(Sketcher.Constraint("Vertical", 0))
sketch8.addConstraint(Sketcher.Constraint("Horizontal", 2))
sketch8.addConstraint(Sketcher.Constraint("Horizontal", 4))
sketch8.addConstraint(Sketcher.Constraint("Vertical", 5))
sketch8.addConstraint(Sketcher.Constraint("Horizontal", 6))
sketch8.addConstraint(Sketcher.Constraint("Vertical", 8))
sketch8.addConstraint(Sketcher.Constraint("Horizontal", 9))
sketch8.addConstraint(Sketcher.Constraint("Vertical", 11))
sketch8.addConstraint(Sketcher.Constraint("Symmetric", 3, 2, 6, 2, -2))
sketch8.addConstraint(Sketcher.Constraint("Symmetric", 5, 2, 7, 2, -2))
sketch8.addConstraint(Sketcher.Constraint("Symmetric", 1, 2, 9, 2, -2))
sketch8.addConstraint(Sketcher.Constraint("Symmetric", 0, 2, 10, 2, -2))
sketch8.addConstraint(Sketcher.Constraint("Parallel", 1, 3))
sketch8.addConstraint(Sketcher.Constraint("Horizontal", 0, 2, 3, 2))
sketch8.addConstraint(Sketcher.Constraint("Horizontal", 2, 2, 5, 2))
sketch8.addConstraint(Sketcher.Constraint("DistanceY", 0, 2, 0, 1, 14.5))
sketch8.addConstraint(Sketcher.Constraint("DistanceX", -1, 1, 0, 2, 47.0))
sketch8.addConstraint(Sketcher.Constraint("DistanceY", -1, 1, 1, 2, 34.0))
sketch8.addConstraint(Sketcher.Constraint("DistanceX", -1, 1, 4, 2, 12.6))
sketch8.addConstraint(Sketcher.Constraint("DistanceX", 2, 1, 2, 2, 24.564006))
pocket5 = doc.addObject("PartDesign::Pocket", "Pocket004")
body.addObject(pocket5)
pocket5.Profile = sketch8
pocket5.Type = "ThroughAll"
pocket5.Reversed = True
doc.recompute()

fillet = doc.addObject("PartDesign::Fillet", "Fillet")
body.addObject(fillet)
fillet.Base = (pocket5, edges_at(pocket5, [
    (12.6, 19.5, 10),
    (37.164, 19.5, 10),
    (12.6, 34, 10),
    (-12.6, 34, 10),
    (-37.164, 19.5, 10),
    (-12.6, 19.5, 10),
    (-47, 19.5, 10),
    (-22.436, 34, 10),
    (-47, 34, 10),
    (47, 34, 10),
    (22.436, 34, 10),
    (47, 19.5, 10),
]))
fillet.Radius = 1

doc.recompute()
